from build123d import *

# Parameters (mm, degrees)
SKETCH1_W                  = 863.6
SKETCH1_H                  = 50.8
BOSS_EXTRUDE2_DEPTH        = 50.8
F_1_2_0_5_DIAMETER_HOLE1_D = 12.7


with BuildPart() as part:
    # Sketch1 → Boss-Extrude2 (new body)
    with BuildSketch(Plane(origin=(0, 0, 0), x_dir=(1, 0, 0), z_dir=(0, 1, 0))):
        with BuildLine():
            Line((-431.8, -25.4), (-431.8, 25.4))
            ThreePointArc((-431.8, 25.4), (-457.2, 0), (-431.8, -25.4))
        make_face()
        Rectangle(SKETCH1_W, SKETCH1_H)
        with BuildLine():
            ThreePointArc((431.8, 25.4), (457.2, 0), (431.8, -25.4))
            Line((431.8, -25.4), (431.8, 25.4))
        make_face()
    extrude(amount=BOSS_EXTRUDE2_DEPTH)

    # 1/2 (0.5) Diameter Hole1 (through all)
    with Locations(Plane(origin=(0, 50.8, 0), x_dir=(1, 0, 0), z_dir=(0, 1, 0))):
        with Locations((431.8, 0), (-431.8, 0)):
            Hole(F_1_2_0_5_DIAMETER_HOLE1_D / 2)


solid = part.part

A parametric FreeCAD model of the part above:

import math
import FreeCAD as App
import Part
import Sketcher

V = App.Vector
Q = App.Units.Quantity

doc = App.newDocument("Part")
body = doc.addObject("PartDesign::Body", "Body")

sketch1 = doc.addObject("Sketcher::SketchObject", "Sketch")
body.addObject(sketch1)
sketch1.AttachmentSupport = (doc.XZ_Plane, [""])
sketch1.MapMode = "FlatFace"
sketch1.addGeometry([
    Part.ArcOfCircle(Part.Circle(V(-432, 0, 0), V(0, 0, 1), 25), math.radians(90), math.radians(270)),
    Part.LineSegment(V(-432, 25, 0), V(432, 25, 0)),
    Part.ArcOfCircle(Part.Circle(V(432, 0, 0), V(0, 0, 1), 25), math.radians(-90), math.radians(90)),
    Part.LineSegment(V(432, -25, 0), V(-432, -25, 0)),
], False)
sketch1.addConstraint([
    Sketcher.Constraint("Tangent", 0, 1, 1, 1),
    Sketcher.Constraint("Tangent", 1, 2, 2, 2),
    Sketcher.Constraint("Tangent", 2, 1, 3, 1),
    Sketcher.Constraint("Tangent", 3, 2, 0, 2),
    Sketcher.Constraint("Horizontal", 1),
    Sketcher.Constraint("Horizontal", 3),
    Sketcher.Constraint("Symmetric", 0, 3, 2, 3, -1, 1),
    Sketcher.Constraint("Radius", 0, Q("1 in")),
    Sketcher.Constraint("DistanceX", 1, 1, 1, 2, Q("34 in")),
])
pad1 = doc.addObject("PartDesign::Pad", "Pad")
body.addObject(pad1)
pad1.Profile = sketch1
pad1.Length = Q("2 in")
pad1.Reversed = True

sketch2 = doc.addObject("Sketcher::SketchObject", "Sketch001")
body.addObject(sketch2)
sketch2.AttachmentSupport = (doc.XZ_Plane, [""])
sketch2.MapMode = "FlatFace"
sketch2.AttachmentOffset = App.Placement(V(0, 0, -2 * 25.4), App.Rotation())
sketch2.addGeometry([
    Part.Circle(V(432, 0, 0), V(0, 0, 1), 6),
    Part.Circle(V(-432, 0, 0), V(0, 0, 1), 6),
], False)
sketch2.addConstraint([
    Sketcher.Constraint("Equal", 0, 1),
    Sketcher.Constraint("Symmetric", 0, 3, 1, 3, -1, 1),
    Sketcher.Constraint("PointOnObject", 0, 3, -1),
    Sketcher.Constraint("Diameter", 0, Q("0.5 in")),
    Sketcher.Constraint("DistanceX", -1, 1, 0, 3, Q("17 in")),
])
doc.recompute()
hole = doc.addObject("PartDesign::Hole", "Hole")
body.addObject(hole)
hole.Profile = sketch2
hole.ThreadType = "None"
hole.Diameter = Q("0.5 in")
hole.DepthType = "ThroughAll"
hole.Reversed = True

doc.recompute()
